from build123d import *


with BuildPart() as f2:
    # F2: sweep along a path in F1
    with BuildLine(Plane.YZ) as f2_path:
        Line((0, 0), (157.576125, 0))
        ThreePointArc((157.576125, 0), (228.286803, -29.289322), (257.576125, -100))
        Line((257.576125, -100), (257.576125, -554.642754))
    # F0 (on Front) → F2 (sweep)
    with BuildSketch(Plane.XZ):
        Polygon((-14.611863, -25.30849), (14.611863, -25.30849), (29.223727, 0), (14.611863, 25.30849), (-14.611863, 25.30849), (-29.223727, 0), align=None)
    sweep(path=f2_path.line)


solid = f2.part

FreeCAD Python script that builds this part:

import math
import FreeCAD as App
import Part
import Sketcher
Q = App.Units.Quantity


def add_polygon(sketch, points):
    """Adds a closed chain of lines whose ends are joined by coincident constraints."""
    first, n = sketch.GeometryCount, len(points)
    for a, b in zip(points, points[1:] + points[:1]):
        sketch.addGeometry(Part.LineSegment(App.Vector(*a, 0), App.Vector(*b, 0)), False)
    for i in range(n):
        sketch.addConstraint(Sketcher.Constraint("Coincident", first + i, 2, first + (i + 1) % n, 1))

doc = App.newDocument("Part")
body = doc.addObject("PartDesign::Body", "Body")

# Sketch on XZ plane
sketch1 = body.newObject("Sketcher::SketchObject", "Sketch")
sketch1.AttachmentSupport = (doc.getObject("XZ_Plane"), [""])
sketch1.MapMode = "FlatFace"
add_polygon(sketch1, [(-14.611863, -25.30849), (14.611863, -25.30849), (29.223727, 0), (14.611863, 25.30849), (-14.611863, 25.30849), (-29.223727, 0)])  # lines 0-5
sketch1.addConstraint([
    Sketcher.Constraint("Horizontal", 0),
    Sketcher.Constraint("Horizontal", 3),
    Sketcher.Constraint("Symmetric", 0, 2, 3, 2, -1, 1),
    Sketcher.Constraint("Symmetric", 1, 2, 4, 2, -1, 1),
    Sketcher.Constraint("PointOnObject", 1, 2, -1),
    Sketcher.Constraint("Parallel", 2, 5),
    Sketcher.Constraint("Vertical", 0, 2, 2, 2),
    Sketcher.Constraint("Angle", 1, Q("59.999999 deg")),
    Sketcher.Constraint("DistanceX", 0, 1, 0, 2, Q("29.223726 mm")),
    Sketcher.Constraint("DistanceY", 0, 2, -1, 1, Q("25.30849 mm")),
])

# Sketch on YZ plane
sketch2 = body.newObject("Sketcher::SketchObject", "Sketch001")
sketch2.AttachmentSupport = (doc.getObject("YZ_Plane"), [""])
sketch2.MapMode = "FlatFace"
sketch2.addGeometry([
    Part.LineSegment(App.Vector(0, 0, 0), App.Vector(157.576125, 0, 0)),
    Part.ArcOfCircle(Part.Circle(App.Vector(157.576125, -100, 0), App.Vector(0, 0, 1), 100), math.radians(0), math.radians(90)),
    Part.LineSegment(App.Vector(257.576125, -100, 0), App.Vector(257.576125, -554.642754, 0)),
], False)
sketch2.addConstraint([
    Sketcher.Constraint("Tangent", 0, 2, 1, 2),
    Sketcher.Constraint("Tangent", 1, 1, 2, 1),
    Sketcher.Constraint("Horizontal", 0),
    Sketcher.Constraint("Vertical", 2),
    Sketcher.Constraint("Coincident", 0, 1, -1, 1),
    Sketcher.Constraint("Radius", 1, Q("100 mm")),
    Sketcher.Constraint("DistanceX", 0, 1, 0, 2, Q("157.576125 mm")),
    Sketcher.Constraint("DistanceY", 2, 2, 2, 1, Q("454.642754 mm")),
])
doc.recompute()

additivepipe = body.newObject("PartDesign::AdditivePipe", "AdditivePipe")
additivepipe.Profile = sketch1
additivepipe.Spine = (sketch2, ["Edge1", "Edge2", "Edge3"])

doc.recompute()
